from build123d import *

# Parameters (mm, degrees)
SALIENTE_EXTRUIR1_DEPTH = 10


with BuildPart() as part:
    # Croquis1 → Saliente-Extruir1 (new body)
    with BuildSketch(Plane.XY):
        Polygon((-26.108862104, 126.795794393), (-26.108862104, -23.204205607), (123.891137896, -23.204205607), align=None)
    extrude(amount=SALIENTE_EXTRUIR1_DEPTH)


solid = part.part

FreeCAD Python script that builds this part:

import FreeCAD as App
import Part
import Sketcher
from FreeCAD import Vector
Q = App.Units.Quantity


def add_polygon(sketch, points):
    """Adds a closed chain of lines whose ends are joined by coincident constraints."""
    first, n = sketch.GeometryCount, len(points)
    for a, b in zip(points, points[1:] + points[:1]):
        sketch.addGeometry(Part.LineSegment(App.Vector(*a, 0), App.Vector(*b, 0)), False)
    for i in range(n):
        sketch.addConstraint(Sketcher.Constraint("Coincident", first + i, 2, first + (i + 1) % n, 1))

doc = App.newDocument("Part")
params = doc.addObject("Spreadsheet::Sheet", "Params")
for row, (alias, value) in enumerate([
    ("sketch1_width", "150 mm"),
    ("pad1_length", "10 mm"),
], start=1):
    params.set(f"A{row}", alias)
    params.set(f"B{row}", "=" + value)
    params.setAlias(f"B{row}", alias)

body = doc.addObject("PartDesign::Body", "Body")

sketch1 = body.newObject("Sketcher::SketchObject", "Sketch")
sketch1.AttachmentSupport = (doc.getObject("XY_Plane"), [""])
sketch1.MapMode = "FlatFace"
add_polygon(sketch1, [(-26, 127), (-26, -23), (124, -23)])
sketch1.addConstraint(Sketcher.Constraint("Vertical", 0))
sketch1.addConstraint(Sketcher.Constraint("Horizontal", 1))
sketch1.addConstraint(Sketcher.Constraint("Equal", 1, 0))
sketch1.addConstraint(Sketcher.Constraint("DistanceX", 1, 1, 1, 2, Q("150 mm")))
sketch1.addConstraint(Sketcher.Constraint("DistanceX", 0, 2, -1, 1, Q("26.108862 mm")))
sketch1.addConstraint(Sketcher.Constraint("DistanceY", 0, 2, -1, 1, Q("23.204206 mm")))
sketch1.setExpression("Constraints[6]", "Params.sketch1_width")
pad1 = body.newObject("PartDesign::Pad", "Pad")
pad1.Profile = sketch1
pad1.setExpression("Length", "Params.pad1_length")

doc.recompute()
